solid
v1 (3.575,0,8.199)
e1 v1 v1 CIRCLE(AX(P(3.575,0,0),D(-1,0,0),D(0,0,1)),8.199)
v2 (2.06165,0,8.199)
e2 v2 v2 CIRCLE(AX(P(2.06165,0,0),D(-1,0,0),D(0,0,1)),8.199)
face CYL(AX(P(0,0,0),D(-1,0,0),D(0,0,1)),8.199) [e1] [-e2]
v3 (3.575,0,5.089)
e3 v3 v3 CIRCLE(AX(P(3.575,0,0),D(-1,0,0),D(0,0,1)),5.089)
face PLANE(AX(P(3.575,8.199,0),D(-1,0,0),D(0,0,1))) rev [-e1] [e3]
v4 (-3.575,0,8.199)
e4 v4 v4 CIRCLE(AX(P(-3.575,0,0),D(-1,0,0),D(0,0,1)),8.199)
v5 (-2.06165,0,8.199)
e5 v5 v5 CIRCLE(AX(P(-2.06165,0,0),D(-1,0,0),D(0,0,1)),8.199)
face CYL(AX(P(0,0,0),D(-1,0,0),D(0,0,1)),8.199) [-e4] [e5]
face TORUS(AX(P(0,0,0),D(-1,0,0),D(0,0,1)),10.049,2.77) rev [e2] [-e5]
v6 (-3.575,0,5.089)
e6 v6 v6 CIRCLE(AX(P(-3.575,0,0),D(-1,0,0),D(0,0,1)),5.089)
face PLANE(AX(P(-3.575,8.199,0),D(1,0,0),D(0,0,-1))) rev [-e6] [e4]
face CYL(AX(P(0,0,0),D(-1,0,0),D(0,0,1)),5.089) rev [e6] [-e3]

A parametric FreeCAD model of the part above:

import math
import FreeCAD as App
import Part
import Sketcher
from FreeCAD import Vector

doc = App.newDocument("Part")
body = doc.addObject("PartDesign::Body", "Body")

# Sketch on XY plane
sketch1 = body.newObject("Sketcher::SketchObject", "Sketch")
sketch1.AttachmentSupport = (doc.getObject("XY_Plane"), [""])
sketch1.MapMode = "FlatFace"
sketch1.addGeometry(Part.LineSegment(Vector(3.6, 8.2, 0), Vector(2.1, 8.2, 0)), False)
sketch1.addGeometry(Part.ArcOfCircle(Part.Circle(Vector(0, 10, 0), Vector(0, 0, 1), 2.8), math.radians(-138), math.radians(-42)), False)
sketch1.addGeometry(Part.LineSegment(Vector(-2.1, 8.2, 0), Vector(-3.6, 8.2, 0)), False)
sketch1.addGeometry(Part.LineSegment(Vector(-3.6, 8.2, 0), Vector(-3.6, 5.1, 0)), False)
sketch1.addGeometry(Part.LineSegment(Vector(-3.6, 5.1, 0), Vector(3.6, 5.1, 0)), False)
sketch1.addGeometry(Part.LineSegment(Vector(3.6, 5.1, 0), Vector(3.6, 8.2, 0)), False)
sketch1.addConstraint(Sketcher.Constraint("Coincident", 0, 2, 1, 2))
sketch1.addConstraint(Sketcher.Constraint("Coincident", 1, 1, 2, 1))
sketch1.addConstraint(Sketcher.Constraint("Coincident", 2, 2, 3, 1))
sketch1.addConstraint(Sketcher.Constraint("Coincident", 3, 2, 4, 1))
sketch1.addConstraint(Sketcher.Constraint("Coincident", 4, 2, 5, 1))
sketch1.addConstraint(Sketcher.Constraint("Coincident", 5, 2, 0, 1))
sketch1.addConstraint(Sketcher.Constraint("Horizontal", 0))
sketch1.addConstraint(Sketcher.Constraint("Horizontal", 2))
sketch1.addConstraint(Sketcher.Constraint("Vertical", 3))
sketch1.addConstraint(Sketcher.Constraint("Horizontal", 4))
sketch1.addConstraint(Sketcher.Constraint("Vertical", 5))
sketch1.addConstraint(Sketcher.Constraint("Symmetric", 0, 2, 1, 1, -2))
sketch1.addConstraint(Sketcher.Constraint("Equal", 0, 2))
sketch1.addConstraint(Sketcher.Constraint("Radius", 1, 2.77))
sketch1.addConstraint(Sketcher.Constraint("DistanceX", 4, 1, 4, 2, 7.15))
sketch1.addConstraint(Sketcher.Constraint("DistanceY", 3, 2, 3, 1, 3.11))
sketch1.addConstraint(Sketcher.Constraint("DistanceY", 0, 2, 1, 3, 1.85))
sketch1.addConstraint(Sketcher.Constraint("DistanceY", -1, 1, 1, 3, 10.049))
revolution = body.newObject("PartDesign::Revolution", "Revolution")
revolution.Profile = sketch1
revolution.ReferenceAxis = (sketch1, ["H_Axis"])
revolution.Angle = 360

doc.recompute()
